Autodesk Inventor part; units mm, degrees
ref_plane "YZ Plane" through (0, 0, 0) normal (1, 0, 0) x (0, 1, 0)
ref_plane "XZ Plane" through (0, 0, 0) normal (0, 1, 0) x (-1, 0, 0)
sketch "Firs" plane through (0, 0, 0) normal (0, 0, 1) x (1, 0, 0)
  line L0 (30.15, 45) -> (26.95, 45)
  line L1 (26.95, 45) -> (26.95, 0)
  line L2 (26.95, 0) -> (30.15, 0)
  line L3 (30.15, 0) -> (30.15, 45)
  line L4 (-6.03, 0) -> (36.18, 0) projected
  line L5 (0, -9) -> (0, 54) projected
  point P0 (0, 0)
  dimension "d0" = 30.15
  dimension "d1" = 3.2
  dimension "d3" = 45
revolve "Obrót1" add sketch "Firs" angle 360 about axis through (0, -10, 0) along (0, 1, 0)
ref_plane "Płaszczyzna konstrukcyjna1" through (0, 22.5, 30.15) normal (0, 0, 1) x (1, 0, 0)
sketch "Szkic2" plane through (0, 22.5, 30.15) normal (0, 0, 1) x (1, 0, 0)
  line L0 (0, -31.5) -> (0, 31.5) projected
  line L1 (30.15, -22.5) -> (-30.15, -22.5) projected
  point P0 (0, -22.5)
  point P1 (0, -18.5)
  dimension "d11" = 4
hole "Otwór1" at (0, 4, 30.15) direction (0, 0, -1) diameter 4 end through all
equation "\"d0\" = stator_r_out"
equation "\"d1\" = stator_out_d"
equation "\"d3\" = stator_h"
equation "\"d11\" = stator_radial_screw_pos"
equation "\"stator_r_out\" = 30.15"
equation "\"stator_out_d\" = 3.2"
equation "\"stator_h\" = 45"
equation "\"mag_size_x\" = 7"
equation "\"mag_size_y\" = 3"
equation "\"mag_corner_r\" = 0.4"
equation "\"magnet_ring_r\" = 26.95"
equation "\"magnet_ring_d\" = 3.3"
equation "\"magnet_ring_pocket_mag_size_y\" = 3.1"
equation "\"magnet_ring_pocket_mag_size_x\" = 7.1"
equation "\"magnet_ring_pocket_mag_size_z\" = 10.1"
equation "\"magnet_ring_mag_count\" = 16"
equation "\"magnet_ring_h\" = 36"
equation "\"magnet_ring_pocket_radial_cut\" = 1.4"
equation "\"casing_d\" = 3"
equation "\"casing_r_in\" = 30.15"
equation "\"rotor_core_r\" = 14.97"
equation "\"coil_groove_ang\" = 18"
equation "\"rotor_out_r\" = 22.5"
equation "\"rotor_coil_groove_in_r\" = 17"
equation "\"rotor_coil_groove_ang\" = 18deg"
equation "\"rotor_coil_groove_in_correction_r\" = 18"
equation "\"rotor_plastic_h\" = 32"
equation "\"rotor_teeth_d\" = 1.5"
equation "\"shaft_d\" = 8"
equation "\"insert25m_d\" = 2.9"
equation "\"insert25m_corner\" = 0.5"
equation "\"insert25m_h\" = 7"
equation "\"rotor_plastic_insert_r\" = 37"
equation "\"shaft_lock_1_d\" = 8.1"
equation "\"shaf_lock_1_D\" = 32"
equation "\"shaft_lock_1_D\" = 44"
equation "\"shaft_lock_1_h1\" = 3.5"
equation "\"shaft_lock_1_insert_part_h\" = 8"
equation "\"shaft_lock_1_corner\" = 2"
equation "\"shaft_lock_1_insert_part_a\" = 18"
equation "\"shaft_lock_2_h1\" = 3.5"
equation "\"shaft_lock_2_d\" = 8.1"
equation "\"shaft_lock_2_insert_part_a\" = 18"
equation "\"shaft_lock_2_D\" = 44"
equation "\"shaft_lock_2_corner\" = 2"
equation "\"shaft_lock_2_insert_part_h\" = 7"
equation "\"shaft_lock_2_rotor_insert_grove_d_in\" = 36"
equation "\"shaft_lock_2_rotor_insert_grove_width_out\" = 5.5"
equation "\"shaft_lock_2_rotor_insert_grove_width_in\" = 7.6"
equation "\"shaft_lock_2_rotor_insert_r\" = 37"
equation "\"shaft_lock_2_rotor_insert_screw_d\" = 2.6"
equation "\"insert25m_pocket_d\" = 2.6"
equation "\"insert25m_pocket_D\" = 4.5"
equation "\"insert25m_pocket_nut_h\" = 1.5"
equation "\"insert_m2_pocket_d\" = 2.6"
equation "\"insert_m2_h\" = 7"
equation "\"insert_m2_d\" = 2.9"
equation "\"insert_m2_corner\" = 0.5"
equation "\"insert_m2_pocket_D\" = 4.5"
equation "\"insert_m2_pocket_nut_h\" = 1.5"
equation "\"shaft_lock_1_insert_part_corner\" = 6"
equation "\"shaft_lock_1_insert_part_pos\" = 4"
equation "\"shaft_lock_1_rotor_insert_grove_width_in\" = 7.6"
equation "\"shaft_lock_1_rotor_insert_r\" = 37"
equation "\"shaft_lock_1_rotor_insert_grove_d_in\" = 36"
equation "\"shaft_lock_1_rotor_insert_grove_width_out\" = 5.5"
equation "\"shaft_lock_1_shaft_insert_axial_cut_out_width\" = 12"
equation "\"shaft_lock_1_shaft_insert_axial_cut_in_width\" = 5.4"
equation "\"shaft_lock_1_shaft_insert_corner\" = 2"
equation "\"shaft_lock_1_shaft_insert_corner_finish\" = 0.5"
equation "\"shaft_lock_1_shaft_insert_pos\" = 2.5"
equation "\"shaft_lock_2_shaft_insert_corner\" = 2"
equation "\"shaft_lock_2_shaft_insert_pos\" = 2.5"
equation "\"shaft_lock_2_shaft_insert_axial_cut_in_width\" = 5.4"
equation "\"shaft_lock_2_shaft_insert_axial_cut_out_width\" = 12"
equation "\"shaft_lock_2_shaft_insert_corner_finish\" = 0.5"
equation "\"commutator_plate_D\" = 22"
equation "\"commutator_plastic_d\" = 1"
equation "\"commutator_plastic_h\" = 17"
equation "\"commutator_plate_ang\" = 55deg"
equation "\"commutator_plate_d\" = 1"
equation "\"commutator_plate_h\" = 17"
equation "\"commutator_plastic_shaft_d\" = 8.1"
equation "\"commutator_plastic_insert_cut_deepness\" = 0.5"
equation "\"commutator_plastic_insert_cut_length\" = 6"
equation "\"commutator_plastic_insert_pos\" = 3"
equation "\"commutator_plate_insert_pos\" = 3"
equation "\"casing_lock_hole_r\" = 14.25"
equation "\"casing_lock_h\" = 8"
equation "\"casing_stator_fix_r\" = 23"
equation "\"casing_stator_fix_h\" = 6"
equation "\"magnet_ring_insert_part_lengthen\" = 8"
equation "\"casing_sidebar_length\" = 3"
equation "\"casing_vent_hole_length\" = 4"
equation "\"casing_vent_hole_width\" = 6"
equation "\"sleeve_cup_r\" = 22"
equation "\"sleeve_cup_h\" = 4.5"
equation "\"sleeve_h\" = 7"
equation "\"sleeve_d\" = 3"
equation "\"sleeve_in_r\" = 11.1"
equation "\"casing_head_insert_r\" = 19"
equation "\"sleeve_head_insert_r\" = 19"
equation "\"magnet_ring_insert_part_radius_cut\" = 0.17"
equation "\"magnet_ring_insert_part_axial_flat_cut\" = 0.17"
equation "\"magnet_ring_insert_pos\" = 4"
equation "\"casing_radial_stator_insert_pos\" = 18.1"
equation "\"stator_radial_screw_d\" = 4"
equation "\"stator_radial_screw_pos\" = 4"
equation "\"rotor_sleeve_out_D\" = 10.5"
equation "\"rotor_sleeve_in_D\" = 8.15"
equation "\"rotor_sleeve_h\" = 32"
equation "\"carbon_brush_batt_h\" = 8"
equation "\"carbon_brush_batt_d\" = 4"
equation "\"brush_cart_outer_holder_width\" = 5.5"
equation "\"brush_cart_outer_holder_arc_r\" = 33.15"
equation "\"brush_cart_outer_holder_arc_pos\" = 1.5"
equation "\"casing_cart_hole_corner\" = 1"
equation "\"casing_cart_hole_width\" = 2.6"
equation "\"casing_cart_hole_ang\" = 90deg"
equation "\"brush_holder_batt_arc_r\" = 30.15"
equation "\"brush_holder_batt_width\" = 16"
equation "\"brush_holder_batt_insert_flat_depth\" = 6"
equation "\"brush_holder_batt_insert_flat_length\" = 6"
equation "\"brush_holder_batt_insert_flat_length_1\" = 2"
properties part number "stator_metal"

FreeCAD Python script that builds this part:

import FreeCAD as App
import Part
import Sketcher

V = App.Vector
Q = App.Units.Quantity

doc = App.newDocument("Part")
body = doc.addObject("PartDesign::Body", "Body")

# Sketch on XY plane
sketch1 = body.newObject("Sketcher::SketchObject", "Sketch")
sketch1.AttachmentSupport = (doc.getObject("XY_Plane"), [""])
sketch1.MapMode = "FlatFace"
sketch1.addGeometry(Part.LineSegment(V(30.15, 0, 0), V(30.15, 45, 0)), False)
sketch1.addGeometry(Part.LineSegment(V(30.15, 45, 0), V(26.95, 45, 0)), False)
sketch1.addGeometry(Part.LineSegment(V(26.95, 45, 0), V(26.95, 0, 0)), False)
sketch1.addGeometry(Part.LineSegment(V(26.95, 0, 0), V(30.15, 0, 0)), False)
sketch1.addConstraint(Sketcher.Constraint("Coincident", 0, 2, 1, 1))
sketch1.addConstraint(Sketcher.Constraint("Coincident", 1, 2, 2, 1))
sketch1.addConstraint(Sketcher.Constraint("Coincident", 2, 2, 3, 1))
sketch1.addConstraint(Sketcher.Constraint("Coincident", 3, 2, 0, 1))
sketch1.addConstraint(Sketcher.Constraint("Vertical", 0))
sketch1.addConstraint(Sketcher.Constraint("Horizontal", 1))
sketch1.addConstraint(Sketcher.Constraint("Vertical", 2))
sketch1.addConstraint(Sketcher.Constraint("Horizontal", 3))
sketch1.addConstraint(Sketcher.Constraint("PointOnObject", 2, 2, -1))
sketch1.addConstraint(Sketcher.Constraint("DistanceY", 0, 1, 0, 2, Q("45 mm")))
sketch1.addConstraint(Sketcher.Constraint("DistanceX", 1, 2, 1, 1, Q("3.2 mm")))
sketch1.addConstraint(Sketcher.Constraint("DistanceX", -1, 1, 0, 2, Q("30.15 mm")))
revolution = body.newObject("PartDesign::Revolution", "Revolution")
revolution.Profile = sketch1
revolution.ReferenceAxis = (sketch1, ["V_Axis"])
revolution.Angle = 360

# Sketch on XY plane
sketch2 = body.newObject("Sketcher::SketchObject", "Sketch001")
sketch2.AttachmentSupport = (doc.getObject("XY_Plane"), [""])
sketch2.MapMode = "FlatFace"
sketch2.AttachmentOffset = App.Placement(V(0, 0, 30.15), App.Rotation())
sketch2.addGeometry(Part.Circle(V(0, 4, 0), V(0, 0, 1), 2), False)
sketch2.addConstraint(Sketcher.Constraint("PointOnObject", 0, 3, -2))
sketch2.addConstraint(Sketcher.Constraint("Diameter", 0, Q("4 mm")))
sketch2.addConstraint(Sketcher.Constraint("DistanceY", -1, 1, 0, 3, Q("4 mm")))
doc.recompute()
hole = body.newObject("PartDesign::Hole", "Hole")
hole.Profile = sketch2
hole.ThreadType = "None"
hole.Diameter = 4
hole.DepthType = "ThroughAll"

doc.recompute()
